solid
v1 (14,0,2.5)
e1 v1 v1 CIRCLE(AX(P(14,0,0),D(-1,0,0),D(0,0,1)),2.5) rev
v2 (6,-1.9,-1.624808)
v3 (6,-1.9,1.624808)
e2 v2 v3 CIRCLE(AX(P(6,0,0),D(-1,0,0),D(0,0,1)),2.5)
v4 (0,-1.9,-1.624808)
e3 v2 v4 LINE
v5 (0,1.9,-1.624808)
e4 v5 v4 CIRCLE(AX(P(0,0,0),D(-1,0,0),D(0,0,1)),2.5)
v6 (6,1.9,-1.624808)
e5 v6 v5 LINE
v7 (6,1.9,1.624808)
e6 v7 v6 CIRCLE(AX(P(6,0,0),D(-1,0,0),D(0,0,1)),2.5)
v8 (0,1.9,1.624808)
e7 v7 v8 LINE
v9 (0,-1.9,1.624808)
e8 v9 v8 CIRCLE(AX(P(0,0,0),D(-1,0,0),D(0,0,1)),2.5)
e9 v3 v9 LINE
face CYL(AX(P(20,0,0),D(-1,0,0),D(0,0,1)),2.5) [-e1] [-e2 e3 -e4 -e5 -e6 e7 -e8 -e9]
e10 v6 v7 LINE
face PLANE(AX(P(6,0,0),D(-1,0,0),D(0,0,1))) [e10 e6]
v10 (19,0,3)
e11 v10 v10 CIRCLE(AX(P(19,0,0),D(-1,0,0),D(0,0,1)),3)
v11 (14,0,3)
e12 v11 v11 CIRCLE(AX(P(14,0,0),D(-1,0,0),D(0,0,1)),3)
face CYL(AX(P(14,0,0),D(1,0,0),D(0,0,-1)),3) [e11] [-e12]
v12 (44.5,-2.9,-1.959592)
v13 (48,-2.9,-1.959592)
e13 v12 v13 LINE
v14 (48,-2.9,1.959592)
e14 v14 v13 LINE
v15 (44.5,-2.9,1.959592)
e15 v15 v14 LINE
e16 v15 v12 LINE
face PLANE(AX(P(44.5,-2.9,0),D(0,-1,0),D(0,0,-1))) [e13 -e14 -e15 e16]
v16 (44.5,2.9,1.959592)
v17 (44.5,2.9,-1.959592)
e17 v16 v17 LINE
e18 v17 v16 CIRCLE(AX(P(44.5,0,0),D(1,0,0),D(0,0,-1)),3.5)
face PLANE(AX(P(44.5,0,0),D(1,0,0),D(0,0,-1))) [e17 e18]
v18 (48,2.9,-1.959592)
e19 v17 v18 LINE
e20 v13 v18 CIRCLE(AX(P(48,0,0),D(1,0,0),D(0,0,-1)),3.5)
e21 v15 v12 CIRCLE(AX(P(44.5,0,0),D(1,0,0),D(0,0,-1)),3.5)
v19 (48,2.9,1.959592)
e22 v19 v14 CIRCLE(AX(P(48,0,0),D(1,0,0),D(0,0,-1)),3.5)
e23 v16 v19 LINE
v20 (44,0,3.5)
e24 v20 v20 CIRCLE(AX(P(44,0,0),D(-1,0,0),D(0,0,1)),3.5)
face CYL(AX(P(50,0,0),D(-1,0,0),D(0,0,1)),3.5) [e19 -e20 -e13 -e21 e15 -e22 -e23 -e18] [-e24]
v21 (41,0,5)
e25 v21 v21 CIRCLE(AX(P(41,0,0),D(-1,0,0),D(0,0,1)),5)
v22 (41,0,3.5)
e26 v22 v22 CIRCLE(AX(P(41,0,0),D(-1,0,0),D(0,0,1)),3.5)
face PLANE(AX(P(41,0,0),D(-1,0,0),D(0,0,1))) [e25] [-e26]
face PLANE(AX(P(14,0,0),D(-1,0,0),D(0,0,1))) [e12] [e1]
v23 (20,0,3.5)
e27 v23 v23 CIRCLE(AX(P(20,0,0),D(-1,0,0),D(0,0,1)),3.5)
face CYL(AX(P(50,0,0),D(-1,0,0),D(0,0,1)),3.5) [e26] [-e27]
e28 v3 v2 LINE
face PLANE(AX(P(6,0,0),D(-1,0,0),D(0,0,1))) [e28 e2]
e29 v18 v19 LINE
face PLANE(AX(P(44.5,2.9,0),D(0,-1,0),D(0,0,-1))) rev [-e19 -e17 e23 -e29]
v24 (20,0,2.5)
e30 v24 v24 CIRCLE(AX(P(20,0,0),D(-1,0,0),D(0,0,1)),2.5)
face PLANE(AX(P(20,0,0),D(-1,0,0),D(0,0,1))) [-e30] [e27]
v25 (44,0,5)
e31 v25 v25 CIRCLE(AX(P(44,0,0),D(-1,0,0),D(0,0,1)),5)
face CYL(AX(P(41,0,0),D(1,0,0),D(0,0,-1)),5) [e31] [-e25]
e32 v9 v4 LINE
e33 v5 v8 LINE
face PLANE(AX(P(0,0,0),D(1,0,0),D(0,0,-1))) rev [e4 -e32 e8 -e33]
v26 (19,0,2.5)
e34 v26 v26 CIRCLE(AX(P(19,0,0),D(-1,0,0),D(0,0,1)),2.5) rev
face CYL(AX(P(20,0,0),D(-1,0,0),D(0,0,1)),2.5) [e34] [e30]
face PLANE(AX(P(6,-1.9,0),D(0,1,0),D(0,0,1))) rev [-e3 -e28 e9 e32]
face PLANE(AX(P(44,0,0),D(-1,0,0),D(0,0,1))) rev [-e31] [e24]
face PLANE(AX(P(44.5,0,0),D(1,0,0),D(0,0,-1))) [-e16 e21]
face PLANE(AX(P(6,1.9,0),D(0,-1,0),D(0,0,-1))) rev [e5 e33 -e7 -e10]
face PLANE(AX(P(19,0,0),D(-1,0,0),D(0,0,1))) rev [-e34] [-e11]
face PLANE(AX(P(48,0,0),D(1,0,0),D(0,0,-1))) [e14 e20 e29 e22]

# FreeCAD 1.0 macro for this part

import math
import FreeCAD as App
import Part
import Sketcher

doc = App.newDocument("Part")
body = doc.addObject("PartDesign::Body", "Body")

sketch1 = body.newObject("Sketcher::SketchObject", "Sketch")
sketch1.AttachmentSupport = (doc.getObject("YZ_Plane"), [""])
sketch1.MapMode = "FlatFace"
sketch1.addGeometry(Part.Circle(App.Vector(0, 0, 0), App.Vector(0, 0, 1), 3.5), False)
sketch1.addConstraint([
    Sketcher.Constraint("Coincident", 0, 3, -1, 1),
    Sketcher.Constraint("Diameter", 0, 7.0),
])
pad1 = body.newObject("PartDesign::Pad", "Pad")
pad1.Profile = sketch1
pad1.Length = 50

sketch2 = body.newObject("Sketcher::SketchObject", "Sketch001")
sketch2.AttachmentSupport = (doc.getObject("YZ_Plane"), [""])
sketch2.MapMode = "FlatFace"
sketch2.AttachmentOffset = App.Placement(App.Vector(0, 0, 44), App.Rotation())
sketch2.addGeometry(Part.Circle(App.Vector(0, 0, 0), App.Vector(0, 0, 1), 5), False)
sketch2.addConstraint([
    Sketcher.Constraint("Coincident", 0, 3, -1, 1),
    Sketcher.Constraint("Diameter", 0, 10.0),
])
pad2 = body.newObject("PartDesign::Pad", "Pad001")
pad2.Profile = sketch2
pad2.Length = 3
pad2.Reversed = True

sketch3 = body.newObject("Sketcher::SketchObject", "Sketch002")
sketch3.AttachmentSupport = (doc.getObject("YZ_Plane"), [""])
sketch3.MapMode = "FlatFace"
sketch3.addGeometry([
    Part.Circle(App.Vector(0, 0, 0), App.Vector(0, 0, 1), 3.5),
    Part.Circle(App.Vector(0, 0, 0), App.Vector(0, 0, 1), 2.5),
], False)
sketch3.addConstraint([
    Sketcher.Constraint("Coincident", 0, 3, -1, 1),
    Sketcher.Constraint("Coincident", 1, 3, -1, 1),
    Sketcher.Constraint("Diameter", 0, 7.0),
    Sketcher.Constraint("Diameter", 1, 5.0),
])
pocket1 = body.newObject("PartDesign::Pocket", "Pocket")
pocket1.Profile = sketch3
pocket1.Length = 20
pocket1.Reversed = True

sketch4 = body.newObject("Sketcher::SketchObject", "Sketch003")
sketch4.AttachmentSupport = (doc.getObject("YZ_Plane"), [""])
sketch4.MapMode = "FlatFace"
sketch4.AttachmentOffset = App.Placement(App.Vector(0, 0, 19), App.Rotation())
sketch4.addGeometry(Part.Circle(App.Vector(0, 0, 0), App.Vector(0, 0, 1), 3), False)
sketch4.addConstraint([
    Sketcher.Constraint("Coincident", 0, 3, -1, 1),
    Sketcher.Constraint("Diameter", 0, 6.0),
])
pad3 = body.newObject("PartDesign::Pad", "Pad002")
pad3.Profile = sketch4
pad3.Length = 5
pad3.Reversed = True

sketch5 = body.newObject("Sketcher::SketchObject", "Sketch004")
sketch5.AttachmentSupport = (doc.getObject("YZ_Plane"), [""])
sketch5.MapMode = "FlatFace"
sketch5.AttachmentOffset = App.Placement(App.Vector(0, 0, 44.5), App.Rotation())
sketch5.addGeometry([
    Part.ArcOfCircle(Part.Circle(App.Vector(0, 0, 0), App.Vector(0, 0, 1), 3.5), math.radians(-34.047732), math.radians(34.047732)),
    Part.LineSegment(App.Vector(2.9, 1.959592, 0), App.Vector(2.9, -1.959592, 0)),
    Part.LineSegment(App.Vector(-2.9, -1.959592, 0), App.Vector(-2.9, 1.959592, 0)),
    Part.ArcOfCircle(Part.Circle(App.Vector(0, 0, 0), App.Vector(0, 0, 1), 3.5), math.radians(145.952268), math.radians(214.047732)),
], False)
sketch5.addConstraint([
    Sketcher.Constraint("Coincident", 0, 1, 1, 2),
    Sketcher.Constraint("Coincident", 1, 1, 0, 2),
    Sketcher.Constraint("Coincident", 2, 1, 3, 2),
    Sketcher.Constraint("Coincident", 3, 1, 2, 2),
    Sketcher.Constraint("Vertical", 1),
    Sketcher.Constraint("Vertical", 2),
    Sketcher.Constraint("Coincident", 0, 3, -1, 1),
    Sketcher.Constraint("Coincident", 3, 3, -1, 1),
    Sketcher.Constraint("Equal", 0, 3),
    Sketcher.Constraint("Horizontal", 0, 1, 2, 1),
    Sketcher.Constraint("Radius", 0, 3.5),
    Sketcher.Constraint("DistanceX", -1, 1, 0, 1, 2.9),
])
pocket2 = body.newObject("PartDesign::Pocket", "Pocket001")
pocket2.Profile = sketch5
pocket2.Length = 5.5
pocket2.Reversed = True

sketch6 = body.newObject("Sketcher::SketchObject", "Sketch005")
sketch6.AttachmentSupport = (doc.getObject("YZ_Plane"), [""])
sketch6.MapMode = "FlatFace"
sketch6.AttachmentOffset = App.Placement(App.Vector(0, 0, 48), App.Rotation())
sketch6.addGeometry([
    Part.LineSegment(App.Vector(2.9, -1.959592, 0), App.Vector(2.9, 1.959592, 0)),
    Part.ArcOfCircle(Part.Circle(App.Vector(0, 0, 0), App.Vector(0, 0, 1), 3.5), math.radians(34.047732), math.radians(145.952268)),
    Part.LineSegment(App.Vector(-2.9, 1.959592, 0), App.Vector(-2.9, -1.959592, 0)),
    Part.ArcOfCircle(Part.Circle(App.Vector(0, 0, 0), App.Vector(0, 0, 1), 3.5), math.radians(-145.952268), math.radians(-34.047732)),
], False)
sketch6.addConstraint([
    Sketcher.Constraint("Coincident", 0, 2, 1, 1),
    Sketcher.Constraint("Coincident", 1, 2, 2, 1),
    Sketcher.Constraint("Coincident", 2, 2, 3, 1),
    Sketcher.Constraint("Coincident", 3, 2, 0, 1),
    Sketcher.Constraint("Vertical", 0),
    Sketcher.Constraint("Vertical", 2),
    Sketcher.Constraint("Coincident", 1, 3, -1, 1),
    Sketcher.Constraint("Coincident", 3, 3, -1, 1),
    Sketcher.Constraint("Equal", 1, 3),
    Sketcher.Constraint("Horizontal", 0, 2, 1, 2),
    Sketcher.Constraint("Radius", 1, 3.5),
    Sketcher.Constraint("DistanceX", -1, 1, 0, 2, 2.9),
])
pocket3 = body.newObject("PartDesign::Pocket", "Pocket002")
pocket3.Profile = sketch6
pocket3.Length = 2
pocket3.Reversed = True

sketch7 = body.newObject("Sketcher::SketchObject", "Sketch006")
sketch7.AttachmentSupport = (doc.getObject("YZ_Plane"), [""])
sketch7.MapMode = "FlatFace"
sketch7.addGeometry([
    Part.ArcOfCircle(Part.Circle(App.Vector(0, 0, 0), App.Vector(0, 0, 1), 2.5), math.radians(-40.535802), math.radians(40.535802)),
    Part.LineSegment(App.Vector(1.9, -1.624808, 0), App.Vector(1.9, 1.624808, 0)),
    Part.LineSegment(App.Vector(-1.9, 1.624808, 0), App.Vector(-1.9, -1.624808, 0)),
    Part.ArcOfCircle(Part.Circle(App.Vector(0, 0, 0), App.Vector(0, 0, 1), 2.5), math.radians(139.464198), math.radians(220.535802)),
], False)
sketch7.addConstraint([
    Sketcher.Constraint("Coincident", 0, 1, 1, 1),
    Sketcher.Constraint("Coincident", 1, 2, 0, 2),
    Sketcher.Constraint("Coincident", 2, 1, 3, 1),
    Sketcher.Constraint("Coincident", 3, 2, 2, 2),
    Sketcher.Constraint("Vertical", 1),
    Sketcher.Constraint("Vertical", 2),
    Sketcher.Constraint("Coincident", 0, 3, -1, 1),
    Sketcher.Constraint("Coincident", 3, 3, -1, 1),
    Sketcher.Constraint("Equal", 0, 3),
    Sketcher.Constraint("Horizontal", 1, 2, 2, 1),
    Sketcher.Constraint("Radius", 0, 2.5),
    Sketcher.Constraint("DistanceX", -1, 1, 0, 1, 1.9),
])
pocket4 = body.newObject("PartDesign::Pocket", "Pocket003")
pocket4.Profile = sketch7
pocket4.Length = 6
pocket4.Reversed = True

doc.recompute()
